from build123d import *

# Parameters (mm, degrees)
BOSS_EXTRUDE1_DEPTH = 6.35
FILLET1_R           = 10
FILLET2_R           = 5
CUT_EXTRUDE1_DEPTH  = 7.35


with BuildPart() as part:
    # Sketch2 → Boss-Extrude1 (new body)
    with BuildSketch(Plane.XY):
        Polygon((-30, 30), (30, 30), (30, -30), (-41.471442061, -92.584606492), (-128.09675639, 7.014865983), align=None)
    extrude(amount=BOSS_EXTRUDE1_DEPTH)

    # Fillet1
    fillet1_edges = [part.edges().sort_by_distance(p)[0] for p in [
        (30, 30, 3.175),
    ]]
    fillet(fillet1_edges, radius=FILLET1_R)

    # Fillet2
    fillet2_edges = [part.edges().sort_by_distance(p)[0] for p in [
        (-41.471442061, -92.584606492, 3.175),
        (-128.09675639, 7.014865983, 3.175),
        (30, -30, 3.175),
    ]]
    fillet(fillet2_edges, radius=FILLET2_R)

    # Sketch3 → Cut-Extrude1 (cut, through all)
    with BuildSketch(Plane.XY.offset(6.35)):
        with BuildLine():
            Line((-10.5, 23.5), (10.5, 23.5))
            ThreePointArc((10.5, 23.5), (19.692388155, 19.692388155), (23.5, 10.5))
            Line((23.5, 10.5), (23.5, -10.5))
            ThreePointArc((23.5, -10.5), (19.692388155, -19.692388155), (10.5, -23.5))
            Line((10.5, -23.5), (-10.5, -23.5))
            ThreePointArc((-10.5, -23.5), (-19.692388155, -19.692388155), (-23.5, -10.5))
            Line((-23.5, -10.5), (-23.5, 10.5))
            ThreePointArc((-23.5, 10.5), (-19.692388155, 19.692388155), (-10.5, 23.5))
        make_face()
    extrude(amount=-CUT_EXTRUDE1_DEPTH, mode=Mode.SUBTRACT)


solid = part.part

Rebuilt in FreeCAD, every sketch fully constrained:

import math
import FreeCAD as App
import Part
import Sketcher
Q = App.Units.Quantity


def edges_at(feature, points):
    """Names of the edges that pass closest to the given points."""
    edges = feature.Shape.Edges
    near = lambda p: min(range(len(edges)), key=lambda i: edges[i].distToShape(Part.Vertex(*p))[0])
    return sorted({f"Edge{near(p) + 1}" for p in points})

doc = App.newDocument("Part")
body = doc.addObject("PartDesign::Body", "Body")

sketch1 = body.newObject("Sketcher::SketchObject", "Sketch")
sketch1.AttachmentSupport = (doc.getObject("XY_Plane"), [""])
sketch1.MapMode = "FlatFace"
sketch1.addGeometry([
    Part.LineSegment(App.Vector(30, 30, 0), App.Vector(-30, 30, 0)),
    Part.LineSegment(App.Vector(-30, 30, 0), App.Vector(-128, 7, 0)),
    Part.LineSegment(App.Vector(-128, 7, 0), App.Vector(-41, -93, 0)),
    Part.LineSegment(App.Vector(-41, -93, 0), App.Vector(30, -30, 0)),
    Part.LineSegment(App.Vector(30, -30, 0), App.Vector(30, 30, 0)),
], False)
sketch1.addConstraint([
    Sketcher.Constraint("Coincident", 0, 2, 1, 1),
    Sketcher.Constraint("Coincident", 1, 2, 2, 1),
    Sketcher.Constraint("Coincident", 2, 2, 3, 1),
    Sketcher.Constraint("Coincident", 3, 2, 4, 1),
    Sketcher.Constraint("Coincident", 4, 2, 0, 1),
    Sketcher.Constraint("Horizontal", 0),
    Sketcher.Constraint("Vertical", 4),
    Sketcher.Constraint("Symmetric", 0, 2, 3, 2, -1, 1),
    Sketcher.Constraint("Equal", 0, 4),
    Sketcher.Constraint("DistanceX", 0, 2, 0, 1, Q("60 mm")),
    Sketcher.Constraint("Distance", 2, Q("132 mm")),
    Sketcher.Constraint("Distance", 3, Q("95 mm")),
    Sketcher.Constraint("Distance", 1, Q("100.75361 mm")),
    Sketcher.Constraint("DistanceX", 1, 2, -1, 1, Q("128.096756 mm")),
])
pad1 = body.newObject("PartDesign::Pad", "Pad")
pad1.Profile = sketch1
pad1.Length = 6.35
doc.recompute()

fillet = body.newObject("PartDesign::Fillet", "Fillet")
fillet.Base = (pad1, edges_at(pad1, [(30, 30, 3.175)]))
fillet.Radius = 10
doc.recompute()

fillet2 = body.newObject("PartDesign::Fillet", "Fillet001")
fillet2.Base = (fillet, edges_at(fillet, [(-41.471, -92.585, 3.175), (-128.097, 7.015, 3.175), (30, -30, 3.175)]))
fillet2.Radius = 5

sketch2 = body.newObject("Sketcher::SketchObject", "Sketch001")
sketch2.AttachmentSupport = (doc.getObject("XY_Plane"), [""])
sketch2.MapMode = "FlatFace"
sketch2.AttachmentOffset = App.Placement(App.Vector(0, 0, 6.35), App.Rotation())
sketch2.addGeometry([
    Part.LineSegment(App.Vector(10, 24, 0), App.Vector(-10, 24, 0)),
    Part.ArcOfCircle(Part.Circle(App.Vector(-10, 10, 0), App.Vector(0, 0, 1), 13), math.radians(90), math.radians(180)),
    Part.LineSegment(App.Vector(-24, 10, 0), App.Vector(-24, -10, 0)),
    Part.ArcOfCircle(Part.Circle(App.Vector(-10, -10, 0), App.Vector(0, 0, 1), 13), math.radians(-180), math.radians(-90)),
    Part.LineSegment(App.Vector(-10, -24, 0), App.Vector(10, -24, 0)),
    Part.ArcOfCircle(Part.Circle(App.Vector(10, -10, 0), App.Vector(0, 0, 1), 13), math.radians(-90), math.radians(0)),
    Part.LineSegment(App.Vector(24, -10, 0), App.Vector(24, 10, 0)),
    Part.ArcOfCircle(Part.Circle(App.Vector(10, 10, 0), App.Vector(0, 0, 1), 13), math.radians(0), math.radians(90)),
], False)
sketch2.addConstraint([
    Sketcher.Constraint("Tangent", 0, 2, 1, 1),
    Sketcher.Constraint("Tangent", 1, 2, 2, 1),
    Sketcher.Constraint("Tangent", 2, 2, 3, 1),
    Sketcher.Constraint("Tangent", 3, 2, 4, 1),
    Sketcher.Constraint("Tangent", 4, 2, 5, 1),
    Sketcher.Constraint("Tangent", 5, 2, 6, 1),
    Sketcher.Constraint("Tangent", 6, 2, 7, 1),
    Sketcher.Constraint("Tangent", 7, 2, 0, 1),
    Sketcher.Constraint("Horizontal", 0),
    Sketcher.Constraint("Vertical", 2),
    Sketcher.Constraint("Horizontal", 4),
    Sketcher.Constraint("Vertical", 6),
    Sketcher.Constraint("Equal", 1, 3),
    Sketcher.Constraint("Equal", 3, 5),
    Sketcher.Constraint("Equal", 5, 7),
    Sketcher.Constraint("Symmetric", 1, 3, 5, 3, -1, 1),
    Sketcher.Constraint("Equal", 4, 2),
    Sketcher.Constraint("Radius", 1, Q("13 mm")),
    Sketcher.Constraint("DistanceX", 0, 2, 0, 1, Q("21 mm")),
])
pocket1 = body.newObject("PartDesign::Pocket", "Pocket")
pocket1.Profile = sketch2
pocket1.Type = "ThroughAll"

doc.recompute()
